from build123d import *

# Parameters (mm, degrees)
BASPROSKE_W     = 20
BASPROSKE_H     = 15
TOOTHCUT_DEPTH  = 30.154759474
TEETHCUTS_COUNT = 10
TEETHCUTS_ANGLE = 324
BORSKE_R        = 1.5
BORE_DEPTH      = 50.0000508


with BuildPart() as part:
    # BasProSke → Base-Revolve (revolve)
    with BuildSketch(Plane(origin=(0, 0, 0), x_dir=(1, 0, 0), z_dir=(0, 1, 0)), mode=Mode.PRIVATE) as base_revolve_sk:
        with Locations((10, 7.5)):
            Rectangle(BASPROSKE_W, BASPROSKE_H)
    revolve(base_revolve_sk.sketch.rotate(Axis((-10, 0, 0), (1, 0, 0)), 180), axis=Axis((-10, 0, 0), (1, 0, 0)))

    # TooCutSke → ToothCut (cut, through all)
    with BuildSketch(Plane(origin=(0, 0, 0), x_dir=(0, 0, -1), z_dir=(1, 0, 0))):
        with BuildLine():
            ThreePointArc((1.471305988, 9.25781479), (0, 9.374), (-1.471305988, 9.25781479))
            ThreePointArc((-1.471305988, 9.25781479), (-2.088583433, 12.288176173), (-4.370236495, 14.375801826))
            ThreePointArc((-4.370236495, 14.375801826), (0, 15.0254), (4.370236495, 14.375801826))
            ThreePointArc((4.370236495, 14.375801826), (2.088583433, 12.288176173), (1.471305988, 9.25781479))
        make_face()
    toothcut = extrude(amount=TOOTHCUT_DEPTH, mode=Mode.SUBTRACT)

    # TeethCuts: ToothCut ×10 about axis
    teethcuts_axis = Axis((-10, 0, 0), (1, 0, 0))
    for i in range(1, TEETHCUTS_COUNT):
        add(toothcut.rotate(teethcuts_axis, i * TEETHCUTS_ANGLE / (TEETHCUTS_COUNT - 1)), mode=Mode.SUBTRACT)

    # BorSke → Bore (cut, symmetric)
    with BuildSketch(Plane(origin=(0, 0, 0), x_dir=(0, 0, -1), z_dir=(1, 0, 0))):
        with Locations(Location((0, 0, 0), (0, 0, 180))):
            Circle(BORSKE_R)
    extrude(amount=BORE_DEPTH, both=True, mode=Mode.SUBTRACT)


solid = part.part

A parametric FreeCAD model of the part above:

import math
import FreeCAD as App
import Part
import Sketcher

V = App.Vector


def add_polygon(sketch, points):
    """Adds a closed chain of lines whose ends are joined by coincident constraints."""
    first, n = sketch.GeometryCount, len(points)
    for a, b in zip(points, points[1:] + points[:1]):
        sketch.addGeometry(Part.LineSegment(App.Vector(*a, 0), App.Vector(*b, 0)), False)
    for i in range(n):
        sketch.addConstraint(Sketcher.Constraint("Coincident", first + i, 2, first + (i + 1) % n, 1))

doc = App.newDocument("Part")
params = doc.addObject("Spreadsheet::Sheet", "Params")
for row, (alias, value) in enumerate([
    ("sketch1_width", "20 mm"),
    ("sketch1_height", "15 mm"),
    ("revolution_angle", "360 deg"),
    ("sketch2_radius", "5 mm"),
    ("sketch3_diameter", "3 mm"),
    ("pocket2_length", "100.000102 mm"),
], start=1):
    params.set(f"A{row}", alias)
    params.set(f"B{row}", "=" + value)
    params.setAlias(f"B{row}", alias)

body = doc.addObject("PartDesign::Body", "Body")

# Sketch on XZ plane
sketch1 = body.newObject("Sketcher::SketchObject", "Sketch")
sketch1.AttachmentSupport = (doc.getObject("XZ_Plane"), [""])
sketch1.MapMode = "FlatFace"
add_polygon(sketch1, [(0, -15), (0, 0), (20, 0), (20, -15)])  # lines 0-3
sketch1.addConstraint([
    Sketcher.Constraint("Vertical", 0),
    Sketcher.Constraint("Horizontal", 1),
    Sketcher.Constraint("Vertical", 2),
    Sketcher.Constraint("Horizontal", 3),
    Sketcher.Constraint("Coincident", 0, 2, -1, 1),
    Sketcher.Constraint("DistanceX", 1, 1, 1, 2, 20.0),
    Sketcher.Constraint("DistanceY", 0, 1, 0, 2, 15.0),
])
sketch1.setExpression("Constraints[9]", "Params.sketch1_width")
sketch1.setExpression("Constraints[10]", "Params.sketch1_height")
revolution = body.newObject("PartDesign::Revolution", "Revolution")
revolution.Profile = sketch1
revolution.ReferenceAxis = (sketch1, ["H_Axis"])
revolution.setExpression("Angle", "Params.revolution_angle")

# Sketch on YZ plane
sketch2 = body.newObject("Sketcher::SketchObject", "Sketch001")
sketch2.AttachmentSupport = (doc.getObject("YZ_Plane"), [""])
sketch2.MapMode = "FlatFace"
sketch2.addGeometry([
    Part.ArcOfCircle(Part.Circle(V(0, 0, 0), V(0, 0, 1), 9.4), math.radians(-9.03), math.radians(9.03)),
    Part.ArcOfCircle(Part.Circle(V(9.8, -6.4, 0), V(0, 0, 1), 5), math.radians(24), math.radians(97)),
    Part.ArcOfCircle(Part.Circle(V(0, 0, 0), V(0, 0, 1), 15), math.radians(-17), math.radians(17)),
    Part.ArcOfCircle(Part.Circle(V(9.8, 6.4, 0), V(0, 0, 1), 5), math.radians(-97), math.radians(-24)),
], False)
sketch2.addConstraint([
    Sketcher.Constraint("Coincident", 0, 1, 1, 2),
    Sketcher.Constraint("Coincident", 1, 1, 2, 1),
    Sketcher.Constraint("Coincident", 2, 2, 3, 2),
    Sketcher.Constraint("Coincident", 3, 1, 0, 2),
    Sketcher.Constraint("Coincident", 0, 3, -1, 1),
    Sketcher.Constraint("Coincident", 2, 3, -1, 1),
    Sketcher.Constraint("Equal", 1, 3),
    Sketcher.Constraint("Symmetric", 1, 3, 3, 3, -1),
    Sketcher.Constraint("Radius", 1, 5.0),
    Sketcher.Constraint("Radius", 0, 9.374),
    Sketcher.Constraint("Radius", 2, 15.0254),
    Sketcher.Constraint("DistanceX", -1, 1, 1, 1, 14.375802),
    Sketcher.Constraint("DistanceY", 1, 3, 3, 3, 12.878309),
])
sketch2.setExpression("Constraints[8]", "Params.sketch2_radius")
pocket1 = body.newObject("PartDesign::Pocket", "Pocket")
pocket1.Profile = sketch2
pocket1.Type = "ThroughAll"
pocket1.Reversed = True
doc.recompute()

polarpattern = body.newObject("PartDesign::PolarPattern", "PolarPattern")
polarpattern.Originals = [pocket1]
polarpattern.Axis = (doc.getObject("X_Axis"), [""])
polarpattern.Angle = 360
polarpattern.Occurrences = 10
body.Tip = polarpattern

# Sketch on YZ plane
sketch3 = body.newObject("Sketcher::SketchObject", "Sketch002")
sketch3.AttachmentSupport = (doc.getObject("YZ_Plane"), [""])
sketch3.MapMode = "FlatFace"
sketch3.addGeometry(Part.Circle(V(0, 0, 0), V(0, 0, 1), 1.5), False)
sketch3.addConstraint([
    Sketcher.Constraint("Coincident", 0, 3, -1, 1),
    Sketcher.Constraint("Diameter", 0, 3.0),
])
sketch3.setExpression("Constraints[1]", "Params.sketch3_diameter")
pocket2 = body.newObject("PartDesign::Pocket", "Pocket001")
pocket2.Profile = sketch3
pocket2.setExpression("Length", "Params.pocket2_length")
pocket2.Midplane = True

doc.recompute()
